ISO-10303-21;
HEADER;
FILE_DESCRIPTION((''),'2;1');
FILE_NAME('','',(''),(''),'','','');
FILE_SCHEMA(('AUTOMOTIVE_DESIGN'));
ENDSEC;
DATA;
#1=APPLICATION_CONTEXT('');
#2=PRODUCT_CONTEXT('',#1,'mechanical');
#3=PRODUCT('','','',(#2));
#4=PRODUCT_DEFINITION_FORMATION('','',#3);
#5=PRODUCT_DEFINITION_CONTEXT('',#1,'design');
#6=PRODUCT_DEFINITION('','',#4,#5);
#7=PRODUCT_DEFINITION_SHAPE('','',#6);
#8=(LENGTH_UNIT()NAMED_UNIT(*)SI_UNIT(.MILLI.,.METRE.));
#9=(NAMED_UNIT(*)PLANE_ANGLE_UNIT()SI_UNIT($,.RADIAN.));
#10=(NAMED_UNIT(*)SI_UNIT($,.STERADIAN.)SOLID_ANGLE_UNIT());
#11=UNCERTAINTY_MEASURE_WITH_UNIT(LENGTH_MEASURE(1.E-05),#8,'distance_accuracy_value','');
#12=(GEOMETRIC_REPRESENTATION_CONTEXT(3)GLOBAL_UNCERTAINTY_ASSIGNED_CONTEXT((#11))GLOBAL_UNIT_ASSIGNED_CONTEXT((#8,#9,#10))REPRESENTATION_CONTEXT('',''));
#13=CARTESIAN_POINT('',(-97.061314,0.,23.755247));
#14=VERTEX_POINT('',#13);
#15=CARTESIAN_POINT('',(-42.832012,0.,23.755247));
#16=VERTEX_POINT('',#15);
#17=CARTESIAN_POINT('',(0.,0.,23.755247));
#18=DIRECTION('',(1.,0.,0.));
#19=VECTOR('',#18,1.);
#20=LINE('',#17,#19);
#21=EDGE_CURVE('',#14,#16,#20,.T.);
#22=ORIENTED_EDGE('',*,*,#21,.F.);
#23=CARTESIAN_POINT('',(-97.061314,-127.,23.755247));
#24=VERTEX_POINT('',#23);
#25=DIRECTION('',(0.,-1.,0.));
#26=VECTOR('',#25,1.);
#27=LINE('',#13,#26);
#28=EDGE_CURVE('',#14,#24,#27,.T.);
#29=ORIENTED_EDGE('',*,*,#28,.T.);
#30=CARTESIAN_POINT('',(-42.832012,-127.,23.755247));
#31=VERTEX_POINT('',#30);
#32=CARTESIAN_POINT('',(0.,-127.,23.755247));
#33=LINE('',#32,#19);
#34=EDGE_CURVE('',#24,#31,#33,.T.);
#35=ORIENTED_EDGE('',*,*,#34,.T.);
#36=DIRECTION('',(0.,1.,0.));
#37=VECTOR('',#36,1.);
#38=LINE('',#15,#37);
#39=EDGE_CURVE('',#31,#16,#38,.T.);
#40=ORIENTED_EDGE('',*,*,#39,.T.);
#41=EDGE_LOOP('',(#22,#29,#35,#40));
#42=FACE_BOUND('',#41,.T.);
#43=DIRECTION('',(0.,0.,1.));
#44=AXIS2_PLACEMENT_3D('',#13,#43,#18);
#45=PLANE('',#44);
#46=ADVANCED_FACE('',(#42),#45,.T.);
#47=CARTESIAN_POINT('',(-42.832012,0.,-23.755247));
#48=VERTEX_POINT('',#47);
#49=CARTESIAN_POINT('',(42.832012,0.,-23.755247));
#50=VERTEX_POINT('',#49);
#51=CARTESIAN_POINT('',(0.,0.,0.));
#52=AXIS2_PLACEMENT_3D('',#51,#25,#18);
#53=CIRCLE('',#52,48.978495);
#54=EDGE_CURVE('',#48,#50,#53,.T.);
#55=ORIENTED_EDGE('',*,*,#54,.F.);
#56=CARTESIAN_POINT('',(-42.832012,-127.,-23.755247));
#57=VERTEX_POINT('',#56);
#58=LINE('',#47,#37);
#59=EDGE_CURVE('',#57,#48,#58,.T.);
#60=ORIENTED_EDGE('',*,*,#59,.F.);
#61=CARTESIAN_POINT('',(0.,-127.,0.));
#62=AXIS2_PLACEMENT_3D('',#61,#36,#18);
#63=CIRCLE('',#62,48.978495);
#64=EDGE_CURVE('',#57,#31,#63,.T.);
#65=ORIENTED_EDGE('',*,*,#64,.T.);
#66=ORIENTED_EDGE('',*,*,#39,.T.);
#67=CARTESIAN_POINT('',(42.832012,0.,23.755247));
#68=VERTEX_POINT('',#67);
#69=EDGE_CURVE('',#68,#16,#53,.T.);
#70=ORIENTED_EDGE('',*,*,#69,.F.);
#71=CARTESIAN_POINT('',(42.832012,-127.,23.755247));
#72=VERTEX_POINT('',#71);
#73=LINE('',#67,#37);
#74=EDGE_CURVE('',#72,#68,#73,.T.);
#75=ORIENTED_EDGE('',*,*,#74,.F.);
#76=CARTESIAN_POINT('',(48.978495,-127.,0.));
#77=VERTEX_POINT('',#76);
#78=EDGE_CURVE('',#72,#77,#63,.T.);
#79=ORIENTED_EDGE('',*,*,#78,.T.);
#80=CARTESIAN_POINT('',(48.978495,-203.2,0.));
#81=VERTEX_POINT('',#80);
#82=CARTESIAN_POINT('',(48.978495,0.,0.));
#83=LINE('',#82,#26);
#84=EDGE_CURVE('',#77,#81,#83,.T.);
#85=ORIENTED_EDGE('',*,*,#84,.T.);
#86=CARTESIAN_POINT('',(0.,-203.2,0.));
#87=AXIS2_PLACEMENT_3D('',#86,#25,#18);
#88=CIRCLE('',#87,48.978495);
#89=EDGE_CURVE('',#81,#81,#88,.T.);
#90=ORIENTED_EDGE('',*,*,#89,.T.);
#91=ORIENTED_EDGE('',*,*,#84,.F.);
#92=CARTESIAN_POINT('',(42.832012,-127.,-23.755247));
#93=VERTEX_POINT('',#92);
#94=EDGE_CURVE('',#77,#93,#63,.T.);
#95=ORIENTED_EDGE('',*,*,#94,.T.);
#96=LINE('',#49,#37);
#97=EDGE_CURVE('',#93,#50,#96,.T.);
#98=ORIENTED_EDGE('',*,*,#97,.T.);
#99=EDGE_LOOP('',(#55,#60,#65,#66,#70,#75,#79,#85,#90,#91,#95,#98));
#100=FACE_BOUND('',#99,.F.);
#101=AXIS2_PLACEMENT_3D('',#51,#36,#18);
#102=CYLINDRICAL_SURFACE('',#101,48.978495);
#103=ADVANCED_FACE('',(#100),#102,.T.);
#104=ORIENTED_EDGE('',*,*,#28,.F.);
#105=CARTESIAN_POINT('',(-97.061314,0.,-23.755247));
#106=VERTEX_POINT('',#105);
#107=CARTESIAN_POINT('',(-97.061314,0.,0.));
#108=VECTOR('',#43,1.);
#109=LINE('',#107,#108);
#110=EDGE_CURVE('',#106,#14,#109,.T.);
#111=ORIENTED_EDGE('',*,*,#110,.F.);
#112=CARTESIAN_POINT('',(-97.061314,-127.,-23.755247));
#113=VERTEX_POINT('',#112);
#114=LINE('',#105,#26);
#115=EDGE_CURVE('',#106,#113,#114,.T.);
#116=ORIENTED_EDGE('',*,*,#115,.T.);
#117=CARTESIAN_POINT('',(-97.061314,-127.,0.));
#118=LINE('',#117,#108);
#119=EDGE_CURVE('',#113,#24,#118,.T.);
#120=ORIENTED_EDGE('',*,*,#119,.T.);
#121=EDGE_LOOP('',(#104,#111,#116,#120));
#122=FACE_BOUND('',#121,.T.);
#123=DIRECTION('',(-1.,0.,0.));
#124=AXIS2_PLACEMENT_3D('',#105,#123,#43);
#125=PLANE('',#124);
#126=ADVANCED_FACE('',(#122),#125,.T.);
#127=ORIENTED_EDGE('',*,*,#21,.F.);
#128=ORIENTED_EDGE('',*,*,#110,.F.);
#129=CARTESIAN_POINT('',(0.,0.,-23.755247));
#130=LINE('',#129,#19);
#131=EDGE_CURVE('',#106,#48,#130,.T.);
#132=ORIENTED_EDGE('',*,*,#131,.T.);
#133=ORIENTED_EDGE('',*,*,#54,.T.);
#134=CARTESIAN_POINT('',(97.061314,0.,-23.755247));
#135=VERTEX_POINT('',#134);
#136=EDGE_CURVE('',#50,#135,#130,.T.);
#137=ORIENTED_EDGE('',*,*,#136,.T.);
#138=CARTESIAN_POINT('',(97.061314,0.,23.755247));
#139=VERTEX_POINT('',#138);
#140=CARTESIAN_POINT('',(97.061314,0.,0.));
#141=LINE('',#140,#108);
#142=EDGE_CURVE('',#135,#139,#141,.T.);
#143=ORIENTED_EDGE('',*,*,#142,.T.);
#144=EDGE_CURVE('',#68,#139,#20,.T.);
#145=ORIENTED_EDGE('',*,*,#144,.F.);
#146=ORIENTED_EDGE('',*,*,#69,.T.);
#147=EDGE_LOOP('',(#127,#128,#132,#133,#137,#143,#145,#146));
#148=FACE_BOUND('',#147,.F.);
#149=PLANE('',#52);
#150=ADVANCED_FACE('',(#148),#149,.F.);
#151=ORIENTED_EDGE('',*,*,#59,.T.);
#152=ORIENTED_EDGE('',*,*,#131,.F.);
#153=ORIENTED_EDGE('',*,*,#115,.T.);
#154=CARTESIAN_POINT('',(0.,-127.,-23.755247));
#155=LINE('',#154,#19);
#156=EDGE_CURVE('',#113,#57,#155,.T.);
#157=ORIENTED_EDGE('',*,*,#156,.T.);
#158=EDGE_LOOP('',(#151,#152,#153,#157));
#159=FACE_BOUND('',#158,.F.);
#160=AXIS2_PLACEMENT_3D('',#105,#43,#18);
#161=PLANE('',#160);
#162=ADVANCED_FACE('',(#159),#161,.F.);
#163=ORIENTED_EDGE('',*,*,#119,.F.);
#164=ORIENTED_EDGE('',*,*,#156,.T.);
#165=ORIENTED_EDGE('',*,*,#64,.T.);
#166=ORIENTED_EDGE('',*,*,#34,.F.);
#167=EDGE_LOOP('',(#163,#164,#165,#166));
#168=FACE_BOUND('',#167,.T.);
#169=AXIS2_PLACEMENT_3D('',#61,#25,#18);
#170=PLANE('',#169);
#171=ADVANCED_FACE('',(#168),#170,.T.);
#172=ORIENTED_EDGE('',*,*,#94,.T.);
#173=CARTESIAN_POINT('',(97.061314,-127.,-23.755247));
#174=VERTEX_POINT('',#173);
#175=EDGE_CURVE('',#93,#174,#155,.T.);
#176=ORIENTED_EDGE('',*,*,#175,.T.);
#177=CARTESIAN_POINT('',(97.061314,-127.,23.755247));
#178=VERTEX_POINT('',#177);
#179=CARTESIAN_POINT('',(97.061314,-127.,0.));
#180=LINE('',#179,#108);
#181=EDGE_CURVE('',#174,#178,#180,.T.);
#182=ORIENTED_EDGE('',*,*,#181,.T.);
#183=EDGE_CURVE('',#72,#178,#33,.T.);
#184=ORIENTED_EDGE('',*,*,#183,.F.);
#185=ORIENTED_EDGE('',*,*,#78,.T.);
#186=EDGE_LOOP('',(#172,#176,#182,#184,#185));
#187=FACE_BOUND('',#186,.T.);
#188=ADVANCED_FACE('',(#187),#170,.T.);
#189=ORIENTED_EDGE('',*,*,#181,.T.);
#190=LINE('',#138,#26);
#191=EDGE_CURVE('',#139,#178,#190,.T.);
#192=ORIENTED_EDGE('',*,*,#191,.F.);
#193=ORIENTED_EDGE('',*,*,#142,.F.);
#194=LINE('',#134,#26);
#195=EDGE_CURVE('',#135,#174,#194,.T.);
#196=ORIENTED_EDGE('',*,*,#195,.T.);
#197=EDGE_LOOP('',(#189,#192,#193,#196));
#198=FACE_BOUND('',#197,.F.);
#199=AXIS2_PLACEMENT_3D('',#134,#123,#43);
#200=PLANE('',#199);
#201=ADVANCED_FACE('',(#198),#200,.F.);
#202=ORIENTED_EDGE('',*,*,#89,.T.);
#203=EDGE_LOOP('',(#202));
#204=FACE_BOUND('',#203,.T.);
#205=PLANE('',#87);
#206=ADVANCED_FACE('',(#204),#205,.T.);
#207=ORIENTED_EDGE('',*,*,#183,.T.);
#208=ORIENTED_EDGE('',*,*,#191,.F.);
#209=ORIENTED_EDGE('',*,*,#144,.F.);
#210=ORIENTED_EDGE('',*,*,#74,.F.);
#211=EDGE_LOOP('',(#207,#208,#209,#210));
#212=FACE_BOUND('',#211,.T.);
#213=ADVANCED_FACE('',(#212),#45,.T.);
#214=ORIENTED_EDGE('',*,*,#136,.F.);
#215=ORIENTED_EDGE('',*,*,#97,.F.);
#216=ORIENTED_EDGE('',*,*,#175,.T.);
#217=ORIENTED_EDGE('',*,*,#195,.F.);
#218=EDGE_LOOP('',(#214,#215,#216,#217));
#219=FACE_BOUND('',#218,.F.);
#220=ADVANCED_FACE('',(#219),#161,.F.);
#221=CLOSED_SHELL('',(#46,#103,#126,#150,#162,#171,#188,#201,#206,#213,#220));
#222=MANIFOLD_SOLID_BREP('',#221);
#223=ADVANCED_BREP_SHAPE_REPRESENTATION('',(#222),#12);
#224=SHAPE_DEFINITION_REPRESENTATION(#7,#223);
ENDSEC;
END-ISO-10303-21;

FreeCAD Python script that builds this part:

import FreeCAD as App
import Part
import Sketcher

V = App.Vector
Q = App.Units.Quantity


def add_polygon(sketch, points):
    """Adds a closed chain of lines whose ends are joined by coincident constraints."""
    first, n = sketch.GeometryCount, len(points)
    for a, b in zip(points, points[1:] + points[:1]):
        sketch.addGeometry(Part.LineSegment(App.Vector(*a, 0), App.Vector(*b, 0)), False)
    for i in range(n):
        sketch.addConstraint(Sketcher.Constraint("Coincident", first + i, 2, first + (i + 1) % n, 1))

doc = App.newDocument("Part")
body = doc.addObject("PartDesign::Body", "Body")

# Sketch on XZ plane
sketch1 = body.newObject("Sketcher::SketchObject", "Sketch")
sketch1.AttachmentSupport = (doc.getObject("XZ_Plane"), [""])
sketch1.MapMode = "FlatFace"
sketch1.addGeometry(Part.Circle(V(0, 0, 0), V(0, 0, 1), 49), False)
sketch1.addConstraint(Sketcher.Constraint("Coincident", 0, 3, -1, 1))
sketch1.addConstraint(Sketcher.Constraint("Diameter", 0, Q("97.95699 mm")))
pad1 = body.newObject("PartDesign::Pad", "Pad")
pad1.Profile = sketch1
pad1.Length = Q("8 in")

# Sketch on XZ plane
sketch2 = body.newObject("Sketcher::SketchObject", "Sketch001")
sketch2.AttachmentSupport = (doc.getObject("XZ_Plane"), [""])
sketch2.MapMode = "FlatFace"
add_polygon(sketch2, [(-97, 24), (-97, -24), (97, -24), (97, 24)])  # lines 0-3
sketch2.addConstraint(Sketcher.Constraint("Vertical", 0))
sketch2.addConstraint(Sketcher.Constraint("Horizontal", 1))
sketch2.addConstraint(Sketcher.Constraint("Vertical", 2))
sketch2.addConstraint(Sketcher.Constraint("Horizontal", 3))
sketch2.addConstraint(Sketcher.Constraint("Symmetric", 0, 2, 2, 2, -1, 1))
sketch2.addConstraint(Sketcher.Constraint("DistanceX", 1, 1, 1, 2, Q("194.122628 mm")))
sketch2.addConstraint(Sketcher.Constraint("DistanceY", 0, 2, 0, 1, Q("47.510494 mm")))
pad2 = body.newObject("PartDesign::Pad", "Pad001")
pad2.Profile = sketch2
pad2.Length = Q("5 in")

doc.recompute()
